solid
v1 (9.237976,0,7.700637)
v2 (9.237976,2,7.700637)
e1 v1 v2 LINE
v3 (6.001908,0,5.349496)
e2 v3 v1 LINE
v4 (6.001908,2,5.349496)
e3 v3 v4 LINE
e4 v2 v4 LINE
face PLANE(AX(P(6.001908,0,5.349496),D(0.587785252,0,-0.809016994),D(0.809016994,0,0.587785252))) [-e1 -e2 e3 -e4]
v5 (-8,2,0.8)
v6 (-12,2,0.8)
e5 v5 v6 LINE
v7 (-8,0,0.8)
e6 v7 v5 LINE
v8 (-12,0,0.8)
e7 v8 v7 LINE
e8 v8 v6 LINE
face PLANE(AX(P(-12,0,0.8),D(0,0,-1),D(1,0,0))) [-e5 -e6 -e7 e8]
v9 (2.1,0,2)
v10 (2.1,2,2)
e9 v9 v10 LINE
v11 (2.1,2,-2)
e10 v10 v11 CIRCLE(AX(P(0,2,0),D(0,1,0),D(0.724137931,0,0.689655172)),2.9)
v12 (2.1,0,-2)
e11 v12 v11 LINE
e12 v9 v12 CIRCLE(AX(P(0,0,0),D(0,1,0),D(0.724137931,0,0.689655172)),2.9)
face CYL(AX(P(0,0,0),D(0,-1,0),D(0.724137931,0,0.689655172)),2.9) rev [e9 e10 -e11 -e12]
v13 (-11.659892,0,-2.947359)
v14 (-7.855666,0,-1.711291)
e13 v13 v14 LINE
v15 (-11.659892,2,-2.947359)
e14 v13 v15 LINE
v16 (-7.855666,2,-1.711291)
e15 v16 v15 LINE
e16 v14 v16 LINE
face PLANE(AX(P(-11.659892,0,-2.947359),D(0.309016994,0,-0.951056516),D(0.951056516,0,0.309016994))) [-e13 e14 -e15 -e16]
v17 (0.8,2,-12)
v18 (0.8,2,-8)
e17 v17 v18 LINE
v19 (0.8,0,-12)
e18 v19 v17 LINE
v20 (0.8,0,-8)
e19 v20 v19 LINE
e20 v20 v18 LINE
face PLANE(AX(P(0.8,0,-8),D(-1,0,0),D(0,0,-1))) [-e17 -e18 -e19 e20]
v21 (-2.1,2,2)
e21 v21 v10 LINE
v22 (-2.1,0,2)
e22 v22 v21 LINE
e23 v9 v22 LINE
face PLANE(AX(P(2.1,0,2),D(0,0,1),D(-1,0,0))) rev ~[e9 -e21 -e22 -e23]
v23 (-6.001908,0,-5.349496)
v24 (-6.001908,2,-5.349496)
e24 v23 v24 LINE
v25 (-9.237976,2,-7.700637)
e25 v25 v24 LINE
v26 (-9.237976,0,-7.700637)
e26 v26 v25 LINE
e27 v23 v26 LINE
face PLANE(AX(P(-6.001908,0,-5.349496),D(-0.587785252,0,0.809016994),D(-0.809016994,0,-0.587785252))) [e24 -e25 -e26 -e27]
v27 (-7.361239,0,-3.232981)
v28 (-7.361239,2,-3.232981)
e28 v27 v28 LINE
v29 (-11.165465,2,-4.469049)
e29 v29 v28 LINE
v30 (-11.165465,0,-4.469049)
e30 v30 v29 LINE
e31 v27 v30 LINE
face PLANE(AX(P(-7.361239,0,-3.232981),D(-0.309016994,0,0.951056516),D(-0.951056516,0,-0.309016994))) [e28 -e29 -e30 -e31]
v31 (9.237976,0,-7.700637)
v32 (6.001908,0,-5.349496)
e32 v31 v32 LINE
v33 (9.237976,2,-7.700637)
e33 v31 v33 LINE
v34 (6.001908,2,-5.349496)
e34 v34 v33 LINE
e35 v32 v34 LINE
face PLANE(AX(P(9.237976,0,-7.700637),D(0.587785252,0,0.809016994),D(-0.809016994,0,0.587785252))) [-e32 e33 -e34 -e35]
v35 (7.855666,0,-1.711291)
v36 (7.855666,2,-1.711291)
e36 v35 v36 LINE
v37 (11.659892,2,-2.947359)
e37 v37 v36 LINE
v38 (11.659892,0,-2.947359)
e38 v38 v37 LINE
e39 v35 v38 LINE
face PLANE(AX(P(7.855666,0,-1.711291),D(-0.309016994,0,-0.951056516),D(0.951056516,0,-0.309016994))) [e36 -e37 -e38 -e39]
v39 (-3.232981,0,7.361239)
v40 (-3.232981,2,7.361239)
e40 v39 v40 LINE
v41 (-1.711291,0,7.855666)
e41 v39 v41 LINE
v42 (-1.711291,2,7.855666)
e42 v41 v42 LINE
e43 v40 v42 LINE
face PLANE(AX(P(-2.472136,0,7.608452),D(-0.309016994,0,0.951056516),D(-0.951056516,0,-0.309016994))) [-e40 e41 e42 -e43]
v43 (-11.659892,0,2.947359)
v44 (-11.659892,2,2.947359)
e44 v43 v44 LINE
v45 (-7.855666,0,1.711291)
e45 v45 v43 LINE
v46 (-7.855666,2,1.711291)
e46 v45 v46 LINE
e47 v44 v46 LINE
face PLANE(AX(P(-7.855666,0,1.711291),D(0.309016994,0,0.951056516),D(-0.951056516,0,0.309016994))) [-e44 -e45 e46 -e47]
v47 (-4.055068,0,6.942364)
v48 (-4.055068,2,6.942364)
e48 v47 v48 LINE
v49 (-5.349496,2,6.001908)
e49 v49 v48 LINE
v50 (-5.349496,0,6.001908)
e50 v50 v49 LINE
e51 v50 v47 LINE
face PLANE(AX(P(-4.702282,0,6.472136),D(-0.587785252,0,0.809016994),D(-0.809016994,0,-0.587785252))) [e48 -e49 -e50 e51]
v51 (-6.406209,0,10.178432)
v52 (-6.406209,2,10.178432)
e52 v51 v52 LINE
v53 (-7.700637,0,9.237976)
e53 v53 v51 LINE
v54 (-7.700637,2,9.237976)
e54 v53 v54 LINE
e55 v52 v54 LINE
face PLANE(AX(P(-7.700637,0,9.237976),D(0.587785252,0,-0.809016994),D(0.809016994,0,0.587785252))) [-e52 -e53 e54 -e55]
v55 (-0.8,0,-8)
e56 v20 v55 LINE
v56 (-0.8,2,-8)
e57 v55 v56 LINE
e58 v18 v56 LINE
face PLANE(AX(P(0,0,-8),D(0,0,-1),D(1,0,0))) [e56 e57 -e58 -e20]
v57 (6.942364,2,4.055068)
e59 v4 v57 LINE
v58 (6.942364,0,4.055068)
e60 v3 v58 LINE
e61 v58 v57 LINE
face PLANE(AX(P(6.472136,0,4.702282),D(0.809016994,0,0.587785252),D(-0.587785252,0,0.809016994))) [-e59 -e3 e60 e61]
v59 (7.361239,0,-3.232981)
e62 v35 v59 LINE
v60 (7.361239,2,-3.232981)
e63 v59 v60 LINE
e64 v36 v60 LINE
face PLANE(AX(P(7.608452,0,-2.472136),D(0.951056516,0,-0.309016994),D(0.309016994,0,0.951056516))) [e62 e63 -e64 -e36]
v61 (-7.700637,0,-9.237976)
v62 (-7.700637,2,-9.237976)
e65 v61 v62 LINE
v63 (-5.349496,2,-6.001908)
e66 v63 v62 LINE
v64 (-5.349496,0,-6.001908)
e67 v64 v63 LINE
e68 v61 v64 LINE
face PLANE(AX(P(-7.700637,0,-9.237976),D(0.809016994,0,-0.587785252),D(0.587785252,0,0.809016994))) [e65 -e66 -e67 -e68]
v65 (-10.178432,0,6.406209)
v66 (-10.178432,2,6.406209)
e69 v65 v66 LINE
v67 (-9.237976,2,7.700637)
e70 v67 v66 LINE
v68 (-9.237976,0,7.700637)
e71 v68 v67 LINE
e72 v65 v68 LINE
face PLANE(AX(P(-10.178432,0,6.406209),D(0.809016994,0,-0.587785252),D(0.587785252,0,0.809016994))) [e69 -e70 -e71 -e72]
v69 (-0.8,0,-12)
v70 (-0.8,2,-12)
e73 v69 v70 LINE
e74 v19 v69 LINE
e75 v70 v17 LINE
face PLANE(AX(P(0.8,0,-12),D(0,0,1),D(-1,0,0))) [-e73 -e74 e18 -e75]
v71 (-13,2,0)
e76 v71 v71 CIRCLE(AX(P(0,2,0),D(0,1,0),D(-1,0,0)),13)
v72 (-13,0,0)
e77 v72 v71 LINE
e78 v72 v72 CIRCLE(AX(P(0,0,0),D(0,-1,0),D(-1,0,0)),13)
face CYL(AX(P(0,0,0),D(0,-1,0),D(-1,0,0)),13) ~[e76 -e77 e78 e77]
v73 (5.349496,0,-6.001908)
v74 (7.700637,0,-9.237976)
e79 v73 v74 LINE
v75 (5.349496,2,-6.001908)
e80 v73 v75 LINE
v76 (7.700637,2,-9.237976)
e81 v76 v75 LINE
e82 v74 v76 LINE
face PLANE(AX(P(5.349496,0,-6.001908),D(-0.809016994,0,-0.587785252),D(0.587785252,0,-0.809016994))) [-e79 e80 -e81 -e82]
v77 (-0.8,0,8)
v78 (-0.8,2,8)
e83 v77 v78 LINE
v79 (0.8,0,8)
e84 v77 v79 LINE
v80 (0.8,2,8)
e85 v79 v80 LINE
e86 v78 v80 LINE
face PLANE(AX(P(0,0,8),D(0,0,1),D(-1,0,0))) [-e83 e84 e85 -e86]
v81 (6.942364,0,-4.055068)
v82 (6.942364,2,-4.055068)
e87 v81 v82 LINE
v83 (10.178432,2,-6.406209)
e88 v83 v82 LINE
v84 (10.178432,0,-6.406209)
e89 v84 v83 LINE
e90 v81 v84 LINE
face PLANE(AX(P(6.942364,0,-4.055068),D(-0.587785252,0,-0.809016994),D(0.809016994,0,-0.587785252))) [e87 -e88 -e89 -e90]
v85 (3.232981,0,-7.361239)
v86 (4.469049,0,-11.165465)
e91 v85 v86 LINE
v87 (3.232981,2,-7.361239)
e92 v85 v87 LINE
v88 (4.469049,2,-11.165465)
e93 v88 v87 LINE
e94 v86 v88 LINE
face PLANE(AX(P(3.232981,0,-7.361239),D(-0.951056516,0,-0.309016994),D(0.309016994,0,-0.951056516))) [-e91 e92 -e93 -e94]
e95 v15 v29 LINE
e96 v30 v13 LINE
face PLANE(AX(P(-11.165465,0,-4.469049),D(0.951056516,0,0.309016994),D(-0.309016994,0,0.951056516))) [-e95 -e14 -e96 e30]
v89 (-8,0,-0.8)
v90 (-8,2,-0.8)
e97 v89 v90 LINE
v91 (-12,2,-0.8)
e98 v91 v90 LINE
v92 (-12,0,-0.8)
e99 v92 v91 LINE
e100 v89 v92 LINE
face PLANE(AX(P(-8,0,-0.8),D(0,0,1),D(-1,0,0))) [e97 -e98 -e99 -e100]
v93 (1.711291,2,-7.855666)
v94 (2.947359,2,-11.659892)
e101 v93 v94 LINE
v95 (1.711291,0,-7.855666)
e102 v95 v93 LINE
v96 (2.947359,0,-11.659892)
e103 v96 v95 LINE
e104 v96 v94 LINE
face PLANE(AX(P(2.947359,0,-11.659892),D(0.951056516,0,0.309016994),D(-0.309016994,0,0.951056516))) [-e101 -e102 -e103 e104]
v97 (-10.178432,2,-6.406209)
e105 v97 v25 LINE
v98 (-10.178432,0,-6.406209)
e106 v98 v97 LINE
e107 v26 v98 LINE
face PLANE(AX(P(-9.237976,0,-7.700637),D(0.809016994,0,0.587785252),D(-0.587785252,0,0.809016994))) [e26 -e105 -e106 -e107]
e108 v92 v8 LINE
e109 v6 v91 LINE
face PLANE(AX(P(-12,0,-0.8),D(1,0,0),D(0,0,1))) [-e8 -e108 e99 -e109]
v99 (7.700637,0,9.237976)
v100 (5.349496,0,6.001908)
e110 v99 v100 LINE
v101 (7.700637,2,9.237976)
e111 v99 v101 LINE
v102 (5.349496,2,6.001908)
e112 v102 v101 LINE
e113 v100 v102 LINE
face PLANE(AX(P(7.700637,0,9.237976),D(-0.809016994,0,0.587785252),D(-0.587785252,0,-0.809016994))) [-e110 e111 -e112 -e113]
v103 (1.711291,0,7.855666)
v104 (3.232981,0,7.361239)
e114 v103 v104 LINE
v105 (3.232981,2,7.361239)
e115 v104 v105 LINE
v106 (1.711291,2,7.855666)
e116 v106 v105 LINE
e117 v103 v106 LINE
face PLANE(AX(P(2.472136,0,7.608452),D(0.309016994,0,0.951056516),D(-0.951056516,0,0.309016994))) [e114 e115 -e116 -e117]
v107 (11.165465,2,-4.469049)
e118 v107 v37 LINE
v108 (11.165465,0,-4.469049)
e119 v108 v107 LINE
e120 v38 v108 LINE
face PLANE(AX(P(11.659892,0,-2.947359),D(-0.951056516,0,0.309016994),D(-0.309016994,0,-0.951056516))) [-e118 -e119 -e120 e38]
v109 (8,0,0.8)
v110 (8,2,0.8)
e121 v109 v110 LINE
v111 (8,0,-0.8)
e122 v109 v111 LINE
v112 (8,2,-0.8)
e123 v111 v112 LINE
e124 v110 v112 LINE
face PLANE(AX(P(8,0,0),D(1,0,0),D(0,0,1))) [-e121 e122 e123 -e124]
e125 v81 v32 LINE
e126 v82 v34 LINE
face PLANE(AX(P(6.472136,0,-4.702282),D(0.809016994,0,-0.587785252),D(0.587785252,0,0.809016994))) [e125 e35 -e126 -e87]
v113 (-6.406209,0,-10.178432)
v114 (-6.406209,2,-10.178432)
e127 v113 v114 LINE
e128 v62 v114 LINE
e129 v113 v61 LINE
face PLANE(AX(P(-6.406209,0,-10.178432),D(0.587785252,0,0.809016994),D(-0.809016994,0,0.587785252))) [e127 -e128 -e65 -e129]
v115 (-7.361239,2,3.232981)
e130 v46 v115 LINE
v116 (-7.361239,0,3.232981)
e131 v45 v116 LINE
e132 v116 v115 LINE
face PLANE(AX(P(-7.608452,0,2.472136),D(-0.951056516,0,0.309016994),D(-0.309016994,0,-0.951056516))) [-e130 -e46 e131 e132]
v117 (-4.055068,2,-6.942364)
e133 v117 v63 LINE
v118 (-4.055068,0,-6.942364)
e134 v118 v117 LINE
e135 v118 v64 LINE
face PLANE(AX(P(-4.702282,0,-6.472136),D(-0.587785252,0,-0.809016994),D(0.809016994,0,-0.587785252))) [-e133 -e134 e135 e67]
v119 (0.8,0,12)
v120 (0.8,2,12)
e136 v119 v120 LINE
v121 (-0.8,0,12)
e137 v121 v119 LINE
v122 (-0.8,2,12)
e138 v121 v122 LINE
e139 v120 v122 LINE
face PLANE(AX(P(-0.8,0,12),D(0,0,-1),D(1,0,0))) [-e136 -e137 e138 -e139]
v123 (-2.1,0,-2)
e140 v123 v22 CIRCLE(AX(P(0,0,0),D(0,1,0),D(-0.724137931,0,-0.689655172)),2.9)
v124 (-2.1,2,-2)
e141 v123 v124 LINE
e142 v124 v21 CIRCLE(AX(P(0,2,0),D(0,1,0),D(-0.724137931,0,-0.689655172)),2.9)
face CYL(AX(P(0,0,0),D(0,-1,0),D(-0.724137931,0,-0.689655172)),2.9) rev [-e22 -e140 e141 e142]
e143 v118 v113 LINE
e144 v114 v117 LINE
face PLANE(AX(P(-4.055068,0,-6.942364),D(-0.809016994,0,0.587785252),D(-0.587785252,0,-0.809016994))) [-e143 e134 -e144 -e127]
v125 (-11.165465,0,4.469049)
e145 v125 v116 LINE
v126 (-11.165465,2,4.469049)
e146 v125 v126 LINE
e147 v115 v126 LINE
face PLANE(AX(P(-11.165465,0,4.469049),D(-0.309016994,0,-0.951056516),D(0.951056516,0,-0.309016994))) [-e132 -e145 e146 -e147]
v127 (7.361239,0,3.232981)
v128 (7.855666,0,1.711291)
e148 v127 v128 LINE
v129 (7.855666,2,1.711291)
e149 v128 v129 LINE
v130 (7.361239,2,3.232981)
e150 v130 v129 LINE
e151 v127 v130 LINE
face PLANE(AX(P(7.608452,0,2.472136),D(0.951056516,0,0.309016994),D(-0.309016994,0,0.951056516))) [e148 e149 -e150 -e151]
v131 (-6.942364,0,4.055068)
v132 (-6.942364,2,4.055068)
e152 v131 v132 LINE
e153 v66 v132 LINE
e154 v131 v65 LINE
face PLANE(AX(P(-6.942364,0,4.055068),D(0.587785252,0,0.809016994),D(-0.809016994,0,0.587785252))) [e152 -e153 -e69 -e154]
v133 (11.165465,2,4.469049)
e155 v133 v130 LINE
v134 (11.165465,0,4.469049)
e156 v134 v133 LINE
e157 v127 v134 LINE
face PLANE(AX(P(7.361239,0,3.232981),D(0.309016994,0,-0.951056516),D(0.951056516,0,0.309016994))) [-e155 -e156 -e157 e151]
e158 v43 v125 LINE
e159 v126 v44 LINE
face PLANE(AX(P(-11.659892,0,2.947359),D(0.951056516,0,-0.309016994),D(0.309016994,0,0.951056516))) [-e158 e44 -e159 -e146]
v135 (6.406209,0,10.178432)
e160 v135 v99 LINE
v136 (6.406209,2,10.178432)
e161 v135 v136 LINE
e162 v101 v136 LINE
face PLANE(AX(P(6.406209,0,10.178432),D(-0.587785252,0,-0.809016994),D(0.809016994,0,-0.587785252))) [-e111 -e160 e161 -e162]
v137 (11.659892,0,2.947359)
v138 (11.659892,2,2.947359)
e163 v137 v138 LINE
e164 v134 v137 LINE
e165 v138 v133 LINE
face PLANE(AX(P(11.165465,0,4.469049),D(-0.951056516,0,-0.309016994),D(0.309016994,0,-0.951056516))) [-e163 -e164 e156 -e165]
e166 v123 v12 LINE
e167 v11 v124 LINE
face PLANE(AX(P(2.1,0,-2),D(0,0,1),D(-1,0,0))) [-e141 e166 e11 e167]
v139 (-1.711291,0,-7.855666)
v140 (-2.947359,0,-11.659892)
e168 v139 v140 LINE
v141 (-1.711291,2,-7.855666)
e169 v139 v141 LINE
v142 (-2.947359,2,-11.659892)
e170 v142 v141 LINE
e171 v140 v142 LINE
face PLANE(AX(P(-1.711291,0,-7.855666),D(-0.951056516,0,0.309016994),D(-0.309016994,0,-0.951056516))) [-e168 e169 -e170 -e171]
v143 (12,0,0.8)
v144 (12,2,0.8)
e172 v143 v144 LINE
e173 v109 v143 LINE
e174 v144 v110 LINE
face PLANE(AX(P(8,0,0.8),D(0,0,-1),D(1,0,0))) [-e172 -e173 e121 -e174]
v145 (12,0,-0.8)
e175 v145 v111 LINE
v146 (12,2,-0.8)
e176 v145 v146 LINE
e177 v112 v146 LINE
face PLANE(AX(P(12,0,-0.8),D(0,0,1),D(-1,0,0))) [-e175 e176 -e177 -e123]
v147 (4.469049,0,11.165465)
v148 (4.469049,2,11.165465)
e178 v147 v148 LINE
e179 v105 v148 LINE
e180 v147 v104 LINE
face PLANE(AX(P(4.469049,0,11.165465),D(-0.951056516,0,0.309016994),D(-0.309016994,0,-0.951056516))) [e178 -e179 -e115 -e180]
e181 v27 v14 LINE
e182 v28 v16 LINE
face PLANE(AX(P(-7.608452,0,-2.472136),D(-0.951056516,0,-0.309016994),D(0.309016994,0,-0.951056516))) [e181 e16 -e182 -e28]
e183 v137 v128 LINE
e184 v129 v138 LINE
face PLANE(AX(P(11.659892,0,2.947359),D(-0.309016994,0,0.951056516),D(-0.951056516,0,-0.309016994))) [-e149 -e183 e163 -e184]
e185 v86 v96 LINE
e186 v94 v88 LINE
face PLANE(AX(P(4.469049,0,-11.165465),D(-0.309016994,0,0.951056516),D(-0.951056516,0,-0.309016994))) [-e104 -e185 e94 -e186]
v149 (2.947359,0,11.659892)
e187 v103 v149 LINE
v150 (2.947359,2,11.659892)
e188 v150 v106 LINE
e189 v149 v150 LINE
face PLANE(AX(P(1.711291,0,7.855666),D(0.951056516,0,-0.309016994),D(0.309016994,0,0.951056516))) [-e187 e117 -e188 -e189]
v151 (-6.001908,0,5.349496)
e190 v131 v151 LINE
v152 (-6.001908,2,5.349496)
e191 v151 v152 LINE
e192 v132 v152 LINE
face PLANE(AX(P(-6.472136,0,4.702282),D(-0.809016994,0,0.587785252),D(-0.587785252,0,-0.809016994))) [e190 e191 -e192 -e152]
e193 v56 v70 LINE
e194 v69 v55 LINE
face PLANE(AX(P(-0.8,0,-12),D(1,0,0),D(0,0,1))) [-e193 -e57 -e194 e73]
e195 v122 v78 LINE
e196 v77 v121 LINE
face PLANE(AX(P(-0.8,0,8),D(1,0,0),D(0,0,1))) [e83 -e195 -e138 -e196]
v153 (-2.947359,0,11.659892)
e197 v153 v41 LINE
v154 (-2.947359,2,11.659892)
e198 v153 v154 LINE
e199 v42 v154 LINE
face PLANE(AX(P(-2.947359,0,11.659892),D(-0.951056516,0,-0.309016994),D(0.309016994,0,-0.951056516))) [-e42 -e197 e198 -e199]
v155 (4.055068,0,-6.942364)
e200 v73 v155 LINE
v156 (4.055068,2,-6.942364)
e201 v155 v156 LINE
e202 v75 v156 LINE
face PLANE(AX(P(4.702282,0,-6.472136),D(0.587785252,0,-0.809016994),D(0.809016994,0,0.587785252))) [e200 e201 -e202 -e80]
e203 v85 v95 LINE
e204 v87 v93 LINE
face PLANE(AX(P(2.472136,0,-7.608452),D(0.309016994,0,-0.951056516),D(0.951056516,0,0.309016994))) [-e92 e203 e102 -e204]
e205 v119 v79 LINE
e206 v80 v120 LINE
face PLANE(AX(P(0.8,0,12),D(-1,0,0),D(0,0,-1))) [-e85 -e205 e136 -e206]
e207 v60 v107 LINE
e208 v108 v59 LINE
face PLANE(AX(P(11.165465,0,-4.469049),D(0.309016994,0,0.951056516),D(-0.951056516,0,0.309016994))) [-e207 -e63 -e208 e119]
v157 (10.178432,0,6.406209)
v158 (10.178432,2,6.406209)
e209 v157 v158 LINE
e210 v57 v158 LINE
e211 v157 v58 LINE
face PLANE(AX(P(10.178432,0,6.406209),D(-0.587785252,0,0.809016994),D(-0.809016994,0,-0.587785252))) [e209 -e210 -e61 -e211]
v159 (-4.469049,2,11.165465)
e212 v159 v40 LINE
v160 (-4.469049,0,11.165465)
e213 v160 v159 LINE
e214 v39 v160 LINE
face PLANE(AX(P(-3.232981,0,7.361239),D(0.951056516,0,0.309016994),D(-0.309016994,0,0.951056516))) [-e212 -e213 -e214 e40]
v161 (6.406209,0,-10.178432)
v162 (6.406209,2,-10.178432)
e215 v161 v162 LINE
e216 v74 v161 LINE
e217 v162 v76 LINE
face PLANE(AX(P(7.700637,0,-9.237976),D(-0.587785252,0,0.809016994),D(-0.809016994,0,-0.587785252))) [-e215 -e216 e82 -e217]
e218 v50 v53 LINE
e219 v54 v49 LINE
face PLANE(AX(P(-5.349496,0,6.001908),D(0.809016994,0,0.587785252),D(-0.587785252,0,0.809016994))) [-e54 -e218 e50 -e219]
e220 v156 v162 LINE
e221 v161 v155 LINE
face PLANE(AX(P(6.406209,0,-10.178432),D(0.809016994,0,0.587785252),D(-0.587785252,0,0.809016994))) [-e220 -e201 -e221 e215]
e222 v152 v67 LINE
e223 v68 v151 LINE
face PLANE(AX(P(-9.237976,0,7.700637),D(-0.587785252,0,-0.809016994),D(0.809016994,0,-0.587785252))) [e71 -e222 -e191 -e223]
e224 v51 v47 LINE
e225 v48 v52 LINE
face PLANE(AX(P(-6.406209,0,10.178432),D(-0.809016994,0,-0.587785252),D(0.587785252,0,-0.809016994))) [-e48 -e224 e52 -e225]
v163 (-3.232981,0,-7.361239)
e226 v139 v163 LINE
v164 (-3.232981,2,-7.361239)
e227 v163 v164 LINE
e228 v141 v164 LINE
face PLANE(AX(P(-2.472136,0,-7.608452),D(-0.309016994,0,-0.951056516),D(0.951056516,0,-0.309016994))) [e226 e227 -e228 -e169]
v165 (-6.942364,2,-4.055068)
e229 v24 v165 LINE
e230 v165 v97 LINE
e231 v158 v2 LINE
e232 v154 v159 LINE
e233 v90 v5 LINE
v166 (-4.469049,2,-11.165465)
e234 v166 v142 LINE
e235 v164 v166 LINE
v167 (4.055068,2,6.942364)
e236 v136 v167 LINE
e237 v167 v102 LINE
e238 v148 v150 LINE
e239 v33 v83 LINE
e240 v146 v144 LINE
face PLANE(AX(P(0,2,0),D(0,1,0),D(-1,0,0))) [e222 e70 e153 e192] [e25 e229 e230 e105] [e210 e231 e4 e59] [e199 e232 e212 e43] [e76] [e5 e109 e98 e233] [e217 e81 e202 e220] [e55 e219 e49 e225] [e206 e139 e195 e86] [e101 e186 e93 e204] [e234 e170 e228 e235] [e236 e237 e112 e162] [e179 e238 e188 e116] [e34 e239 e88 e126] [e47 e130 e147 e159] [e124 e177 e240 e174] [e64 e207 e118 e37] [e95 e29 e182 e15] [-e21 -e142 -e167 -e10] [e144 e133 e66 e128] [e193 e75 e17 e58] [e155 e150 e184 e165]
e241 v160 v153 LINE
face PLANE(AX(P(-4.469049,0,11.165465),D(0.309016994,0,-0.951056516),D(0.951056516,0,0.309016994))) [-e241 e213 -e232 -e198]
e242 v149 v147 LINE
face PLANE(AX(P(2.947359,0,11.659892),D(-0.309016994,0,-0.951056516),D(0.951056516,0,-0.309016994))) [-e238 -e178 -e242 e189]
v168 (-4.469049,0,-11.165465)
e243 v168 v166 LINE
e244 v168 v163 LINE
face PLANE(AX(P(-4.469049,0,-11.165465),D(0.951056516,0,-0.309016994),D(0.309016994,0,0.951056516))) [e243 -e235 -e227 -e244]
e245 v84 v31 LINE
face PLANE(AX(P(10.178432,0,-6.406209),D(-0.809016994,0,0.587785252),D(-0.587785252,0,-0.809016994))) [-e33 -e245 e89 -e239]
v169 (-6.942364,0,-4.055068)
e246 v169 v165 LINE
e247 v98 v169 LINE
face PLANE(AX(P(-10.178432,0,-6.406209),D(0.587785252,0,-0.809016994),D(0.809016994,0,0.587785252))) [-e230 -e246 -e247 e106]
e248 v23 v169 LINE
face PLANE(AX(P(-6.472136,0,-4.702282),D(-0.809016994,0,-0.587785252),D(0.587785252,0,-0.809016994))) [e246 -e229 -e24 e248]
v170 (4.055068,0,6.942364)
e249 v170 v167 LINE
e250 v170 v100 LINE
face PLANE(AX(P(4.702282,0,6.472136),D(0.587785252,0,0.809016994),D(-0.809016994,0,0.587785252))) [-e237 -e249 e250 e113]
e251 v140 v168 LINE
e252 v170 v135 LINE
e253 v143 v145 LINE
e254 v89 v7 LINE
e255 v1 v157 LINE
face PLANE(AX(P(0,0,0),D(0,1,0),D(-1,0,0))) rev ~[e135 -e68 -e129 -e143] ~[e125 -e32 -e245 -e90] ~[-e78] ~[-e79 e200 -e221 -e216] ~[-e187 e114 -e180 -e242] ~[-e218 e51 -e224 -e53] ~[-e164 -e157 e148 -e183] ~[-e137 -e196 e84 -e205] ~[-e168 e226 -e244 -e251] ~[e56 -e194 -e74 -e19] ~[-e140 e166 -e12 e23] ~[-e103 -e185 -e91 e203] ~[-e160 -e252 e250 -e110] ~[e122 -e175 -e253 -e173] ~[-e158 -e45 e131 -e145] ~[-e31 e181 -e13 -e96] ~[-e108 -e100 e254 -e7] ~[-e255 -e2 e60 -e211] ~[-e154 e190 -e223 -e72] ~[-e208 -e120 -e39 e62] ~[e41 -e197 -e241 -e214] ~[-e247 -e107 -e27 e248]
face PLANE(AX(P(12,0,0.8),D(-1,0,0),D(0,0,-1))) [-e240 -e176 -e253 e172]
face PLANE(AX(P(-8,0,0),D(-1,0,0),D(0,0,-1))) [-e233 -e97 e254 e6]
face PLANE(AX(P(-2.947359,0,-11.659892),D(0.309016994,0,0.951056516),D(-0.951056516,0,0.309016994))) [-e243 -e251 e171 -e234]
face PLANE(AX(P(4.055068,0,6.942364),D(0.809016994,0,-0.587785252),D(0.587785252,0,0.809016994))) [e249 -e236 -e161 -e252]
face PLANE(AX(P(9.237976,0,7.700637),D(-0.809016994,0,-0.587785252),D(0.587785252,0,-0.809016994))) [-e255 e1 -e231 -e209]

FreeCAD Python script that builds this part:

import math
import FreeCAD as App
import Part
import Sketcher

doc = App.newDocument("Part")
body = doc.addObject("PartDesign::Body", "Body")

sketch1 = doc.addObject("Sketcher::SketchObject", "Sketch")
body.addObject(sketch1)
sketch1.AttachmentSupport = (doc.XZ_Plane, [""])
sketch1.MapMode = "FlatFace"
sketch1.addGeometry([
    Part.Circle(App.Vector(0, 0, 0), App.Vector(0, 0, 1), 13),
    Part.ArcOfCircle(Part.Circle(App.Vector(0, 0, 0), App.Vector(0, 0, 1), 2.9), math.radians(-43.602819), math.radians(43.602819)),
    Part.LineSegment(App.Vector(2.1, 2, 0), App.Vector(-2.1, 2, 0)),
    Part.ArcOfCircle(Part.Circle(App.Vector(0, 0, 0), App.Vector(0, 0, 1), 2.9), math.radians(136.397181), math.radians(223.602819)),
    Part.LineSegment(App.Vector(-2.1, -2, 0), App.Vector(2.1, -2, 0)),
], False)
sketch1.addConstraint([
    Sketcher.Constraint("Coincident", 1, 2, 2, 1),
    Sketcher.Constraint("Coincident", 2, 2, 3, 1),
    Sketcher.Constraint("Coincident", 3, 2, 4, 1),
    Sketcher.Constraint("Coincident", 4, 2, 1, 1),
    Sketcher.Constraint("Horizontal", 2),
    Sketcher.Constraint("Horizontal", 4),
    Sketcher.Constraint("Coincident", 0, 3, -1, 1),
    Sketcher.Constraint("Coincident", 1, 3, -1, 1),
    Sketcher.Constraint("Coincident", 3, 3, -1, 1),
    Sketcher.Constraint("Equal", 1, 3),
    Sketcher.Constraint("Vertical", 2, 2, 3, 2),
    Sketcher.Constraint("Diameter", 0, 26.0),
    Sketcher.Constraint("Radius", 1, 2.9),
    Sketcher.Constraint("DistanceY", -1, 1, 1, 2, 2.0),
])
pad1 = doc.addObject("PartDesign::Pad", "Pad")
body.addObject(pad1)
pad1.Profile = sketch1
pad1.Length = 2
pad1.Reversed = True

sketch2 = doc.addObject("Sketcher::SketchObject", "Sketch001")
body.addObject(sketch2)
sketch2.AttachmentSupport = (doc.XZ_Plane, [""])
sketch2.MapMode = "FlatFace"
sketch2.addGeometry([
    Part.LineSegment(App.Vector(-0.8, 12, 0), App.Vector(-0.8, 8, 0)),
    Part.LineSegment(App.Vector(-0.8, 8, 0), App.Vector(0.8, 8, 0)),
    Part.LineSegment(App.Vector(0.8, 8, 0), App.Vector(0.8, 12, 0)),
    Part.LineSegment(App.Vector(0.8, 12, 0), App.Vector(-0.8, 12, 0)),
], False)
sketch2.addConstraint([
    Sketcher.Constraint("Coincident", 0, 2, 1, 1),
    Sketcher.Constraint("Coincident", 1, 2, 2, 1),
    Sketcher.Constraint("Coincident", 2, 2, 3, 1),
    Sketcher.Constraint("Coincident", 3, 2, 0, 1),
    Sketcher.Constraint("Vertical", 0),
    Sketcher.Constraint("Horizontal", 1),
    Sketcher.Constraint("Vertical", 2),
    Sketcher.Constraint("Horizontal", 3),
    Sketcher.Constraint("DistanceY", 0, 2, 0, 1, 4.0),
    Sketcher.Constraint("DistanceY", -1, 1, 0, 2, 8.0),
    Sketcher.Constraint("DistanceX", 0, 2, -1, 1, 0.8),
    Sketcher.Constraint("DistanceX", -1, 1, 1, 2, 0.8),
])
pocket1 = doc.addObject("PartDesign::Pocket", "Pocket")
body.addObject(pocket1)
pocket1.Profile = sketch2
pocket1.Type = "ThroughAll"
doc.recompute()

polarpattern = doc.addObject("PartDesign::PolarPattern", "PolarPattern")
body.addObject(polarpattern)
polarpattern.Originals = [pocket1]
polarpattern.Axis = (doc.Y_Axis, [""])
polarpattern.Angle = 360
polarpattern.Occurrences = 20
body.Tip = polarpattern

doc.recompute()
